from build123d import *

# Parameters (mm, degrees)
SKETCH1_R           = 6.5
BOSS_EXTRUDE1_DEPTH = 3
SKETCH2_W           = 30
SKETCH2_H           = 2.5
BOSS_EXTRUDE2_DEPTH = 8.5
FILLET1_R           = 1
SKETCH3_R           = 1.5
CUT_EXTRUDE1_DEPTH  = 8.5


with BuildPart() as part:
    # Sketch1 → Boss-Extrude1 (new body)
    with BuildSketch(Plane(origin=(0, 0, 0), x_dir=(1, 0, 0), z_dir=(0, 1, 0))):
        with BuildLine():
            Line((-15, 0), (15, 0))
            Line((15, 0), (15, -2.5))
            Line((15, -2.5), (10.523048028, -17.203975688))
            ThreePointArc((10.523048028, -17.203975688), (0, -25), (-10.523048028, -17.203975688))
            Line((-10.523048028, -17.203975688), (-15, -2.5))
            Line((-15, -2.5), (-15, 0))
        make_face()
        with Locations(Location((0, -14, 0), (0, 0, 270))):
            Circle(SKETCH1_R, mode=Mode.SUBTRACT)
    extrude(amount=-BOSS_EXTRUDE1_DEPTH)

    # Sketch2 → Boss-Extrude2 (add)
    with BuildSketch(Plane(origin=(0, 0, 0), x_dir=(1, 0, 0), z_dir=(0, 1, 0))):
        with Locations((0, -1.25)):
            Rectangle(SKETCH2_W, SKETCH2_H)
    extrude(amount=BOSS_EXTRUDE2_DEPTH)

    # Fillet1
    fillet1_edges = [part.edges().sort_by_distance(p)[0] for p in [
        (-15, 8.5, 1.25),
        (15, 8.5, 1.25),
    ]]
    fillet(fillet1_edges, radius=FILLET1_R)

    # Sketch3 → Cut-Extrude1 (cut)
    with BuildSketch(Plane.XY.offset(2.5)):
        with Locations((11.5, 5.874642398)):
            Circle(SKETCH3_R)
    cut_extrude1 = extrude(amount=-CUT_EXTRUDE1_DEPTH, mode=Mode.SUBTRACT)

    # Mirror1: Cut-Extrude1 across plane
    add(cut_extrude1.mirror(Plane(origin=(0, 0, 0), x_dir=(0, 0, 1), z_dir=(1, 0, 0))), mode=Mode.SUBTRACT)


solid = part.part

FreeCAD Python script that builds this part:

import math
import FreeCAD as App
import Part
import Sketcher
Q = App.Units.Quantity


def edges_at(feature, points):
    """Names of the edges that pass closest to the given points."""
    edges = feature.Shape.Edges
    near = lambda p: min(range(len(edges)), key=lambda i: edges[i].distToShape(Part.Vertex(*p))[0])
    return sorted({f"Edge{near(p) + 1}" for p in points})


def add_polygon(sketch, points):
    """Adds a closed chain of lines whose ends are joined by coincident constraints."""
    first, n = sketch.GeometryCount, len(points)
    for a, b in zip(points, points[1:] + points[:1]):
        sketch.addGeometry(Part.LineSegment(App.Vector(*a, 0), App.Vector(*b, 0)), False)
    for i in range(n):
        sketch.addConstraint(Sketcher.Constraint("Coincident", first + i, 2, first + (i + 1) % n, 1))

doc = App.newDocument("Part")
body = doc.addObject("PartDesign::Body", "Body")

sketch1 = body.newObject("Sketcher::SketchObject", "Sketch")
sketch1.AttachmentSupport = (doc.getObject("XZ_Plane"), [""])
sketch1.MapMode = "FlatFace"
sketch1.addGeometry([
    Part.LineSegment(App.Vector(15, 0, 0), App.Vector(-15, 0, 0)),
    Part.LineSegment(App.Vector(-15, 0, 0), App.Vector(-15, 2.5, 0)),
    Part.LineSegment(App.Vector(-15, 2.5, 0), App.Vector(-10.523048, 17.203976, 0)),
    Part.ArcOfCircle(Part.Circle(App.Vector(0, 14, 0), App.Vector(0, 0, 1), 11), math.radians(16.934035), math.radians(163.065965)),
    Part.LineSegment(App.Vector(10.523048, 17.203976, 0), App.Vector(15, 2.5, 0)),
    Part.LineSegment(App.Vector(15, 2.5, 0), App.Vector(15, 0, 0)),
    Part.Circle(App.Vector(0, 14, 0), App.Vector(0, 0, 1), 6.5),
], False)
sketch1.addConstraint([
    Sketcher.Constraint("Coincident", 0, 2, 1, 1),
    Sketcher.Constraint("Coincident", 1, 2, 2, 1),
    Sketcher.Constraint("Tangent", 2, 2, 3, 2),
    Sketcher.Constraint("Tangent", 3, 1, 4, 1),
    Sketcher.Constraint("Coincident", 4, 2, 5, 1),
    Sketcher.Constraint("Coincident", 5, 2, 0, 1),
    Sketcher.Constraint("Horizontal", 0),
    Sketcher.Constraint("Vertical", 1),
    Sketcher.Constraint("Vertical", 5),
    Sketcher.Constraint("Coincident", 6, 3, 3, 3),
    Sketcher.Constraint("Symmetric", 0, 2, 5, 2, -1, 1),
    Sketcher.Constraint("Symmetric", 2, 2, 3, 1, -2),
    Sketcher.Constraint("Diameter", 6, Q("13 mm")),
    Sketcher.Constraint("Radius", 3, Q("11 mm")),
    Sketcher.Constraint("DistanceX", 0, 2, 0, 1, Q("30 mm")),
    Sketcher.Constraint("DistanceY", 1, 1, 1, 2, Q("2.5 mm")),
    Sketcher.Constraint("DistanceY", -1, 1, 3, 3, Q("14 mm")),
])
pad1 = body.newObject("PartDesign::Pad", "Pad")
pad1.Profile = sketch1
pad1.Length = 3

sketch2 = body.newObject("Sketcher::SketchObject", "Sketch001")
sketch2.AttachmentSupport = (doc.getObject("XZ_Plane"), [""])
sketch2.MapMode = "FlatFace"
add_polygon(sketch2, [(-15, 0), (-15, 2.5), (15, 2.5), (15, 0)])
sketch2.addConstraint([
    Sketcher.Constraint("Vertical", 0),
    Sketcher.Constraint("Horizontal", 1),
    Sketcher.Constraint("Vertical", 2),
    Sketcher.Constraint("Horizontal", 3),
    Sketcher.Constraint("Symmetric", 2, 2, 3, 2, -1, 1),
    Sketcher.Constraint("DistanceX", 1, 1, 1, 2, Q("30 mm")),
    Sketcher.Constraint("DistanceY", 0, 1, 0, 2, Q("2.5 mm")),
])
pad2 = body.newObject("PartDesign::Pad", "Pad001")
pad2.Profile = sketch2
pad2.Length = 8.5
pad2.Reversed = True
doc.recompute()

fillet = body.newObject("PartDesign::Fillet", "Fillet")
fillet.Base = (pad2, edges_at(pad2, [(-15, 8.5, 1.25), (15, 8.5, 1.25)]))
fillet.Radius = 1

sketch3 = body.newObject("Sketcher::SketchObject", "Sketch002")
sketch3.AttachmentSupport = (doc.getObject("XY_Plane"), [""])
sketch3.MapMode = "FlatFace"
sketch3.AttachmentOffset = App.Placement(App.Vector(0, 0, 2.5), App.Rotation())
sketch3.addGeometry(Part.Circle(App.Vector(11.5, 5.874642, 0), App.Vector(0, 0, 1), 1.5), False)
sketch3.addConstraint([
    Sketcher.Constraint("Diameter", 0, Q("3 mm")),
    Sketcher.Constraint("DistanceX", -1, 1, 0, 3, Q("11.5 mm")),
    Sketcher.Constraint("DistanceY", -1, 1, 0, 3, Q("5.874642 mm")),
])
pocket1 = body.newObject("PartDesign::Pocket", "Pocket")
pocket1.Profile = sketch3
pocket1.Length = 8.5
doc.recompute()

mirrored = body.newObject("PartDesign::Mirrored", "Mirrored")
mirrored.Originals = [pocket1]
mirrored.MirrorPlane = (doc.getObject("YZ_Plane"), [""])
body.Tip = mirrored

doc.recompute()
